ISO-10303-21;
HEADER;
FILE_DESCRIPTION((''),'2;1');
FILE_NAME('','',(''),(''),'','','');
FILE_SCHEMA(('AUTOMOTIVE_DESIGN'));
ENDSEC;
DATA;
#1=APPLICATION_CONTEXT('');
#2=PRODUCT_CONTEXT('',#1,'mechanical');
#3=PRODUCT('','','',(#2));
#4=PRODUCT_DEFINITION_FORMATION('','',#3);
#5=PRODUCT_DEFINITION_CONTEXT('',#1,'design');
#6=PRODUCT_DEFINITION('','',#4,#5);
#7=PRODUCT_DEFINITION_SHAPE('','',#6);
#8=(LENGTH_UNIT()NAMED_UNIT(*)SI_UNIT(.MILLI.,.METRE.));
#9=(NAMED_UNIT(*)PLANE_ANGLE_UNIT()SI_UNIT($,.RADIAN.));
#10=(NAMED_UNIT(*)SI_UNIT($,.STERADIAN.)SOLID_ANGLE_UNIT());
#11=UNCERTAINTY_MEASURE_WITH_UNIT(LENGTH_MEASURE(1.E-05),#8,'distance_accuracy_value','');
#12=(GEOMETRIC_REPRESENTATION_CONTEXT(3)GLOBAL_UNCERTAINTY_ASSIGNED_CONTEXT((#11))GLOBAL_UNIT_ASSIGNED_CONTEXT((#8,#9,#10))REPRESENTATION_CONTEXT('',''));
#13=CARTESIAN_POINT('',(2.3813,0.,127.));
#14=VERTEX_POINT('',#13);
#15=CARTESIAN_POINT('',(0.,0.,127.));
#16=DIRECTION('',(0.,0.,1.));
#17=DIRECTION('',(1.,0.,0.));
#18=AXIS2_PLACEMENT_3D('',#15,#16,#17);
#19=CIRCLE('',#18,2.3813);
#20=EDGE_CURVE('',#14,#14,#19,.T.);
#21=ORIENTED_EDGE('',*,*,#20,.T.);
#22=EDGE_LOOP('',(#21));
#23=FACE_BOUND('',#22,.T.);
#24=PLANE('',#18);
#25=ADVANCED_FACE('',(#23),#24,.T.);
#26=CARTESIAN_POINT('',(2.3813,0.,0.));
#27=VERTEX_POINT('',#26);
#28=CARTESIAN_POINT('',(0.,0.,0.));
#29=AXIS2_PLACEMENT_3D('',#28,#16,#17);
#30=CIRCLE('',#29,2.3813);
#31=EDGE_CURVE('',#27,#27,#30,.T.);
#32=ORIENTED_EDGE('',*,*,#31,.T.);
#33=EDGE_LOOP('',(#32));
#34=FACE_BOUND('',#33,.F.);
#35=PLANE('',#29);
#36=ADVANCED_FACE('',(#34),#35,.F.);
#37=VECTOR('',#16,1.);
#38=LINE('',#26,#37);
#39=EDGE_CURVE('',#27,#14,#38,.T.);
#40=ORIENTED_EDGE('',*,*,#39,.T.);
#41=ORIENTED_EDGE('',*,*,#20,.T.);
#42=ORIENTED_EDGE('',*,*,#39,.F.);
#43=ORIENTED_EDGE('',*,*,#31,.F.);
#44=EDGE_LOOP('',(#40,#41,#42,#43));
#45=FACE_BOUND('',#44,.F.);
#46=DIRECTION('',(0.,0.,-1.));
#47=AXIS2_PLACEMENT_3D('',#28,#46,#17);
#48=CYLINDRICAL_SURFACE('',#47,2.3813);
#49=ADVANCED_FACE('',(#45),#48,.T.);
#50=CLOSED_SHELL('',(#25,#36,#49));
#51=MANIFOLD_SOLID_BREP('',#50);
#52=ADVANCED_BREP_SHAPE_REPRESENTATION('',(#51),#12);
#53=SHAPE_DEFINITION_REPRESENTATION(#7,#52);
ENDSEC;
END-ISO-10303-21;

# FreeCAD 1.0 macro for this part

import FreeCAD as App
import Part
import Sketcher
Q = App.Units.Quantity

doc = App.newDocument("Part")
body = doc.addObject("PartDesign::Body", "Body")

sketch1 = body.newObject("Sketcher::SketchObject", "Sketch")
sketch1.AttachmentSupport = (doc.getObject("XY_Plane"), [""])
sketch1.MapMode = "FlatFace"
sketch1.addGeometry(Part.Circle(App.Vector(0, 0, 0), App.Vector(0, 0, 1), 2.4), False)
sketch1.addConstraint([
    Sketcher.Constraint("Coincident", 0, 3, -1, 1),
    Sketcher.Constraint("Diameter", 0, Q("0.1875 in")),
])
pad1 = body.newObject("PartDesign::Pad", "Pad")
pad1.Profile = sketch1
pad1.Length = Q("5 in")

doc.recompute()
